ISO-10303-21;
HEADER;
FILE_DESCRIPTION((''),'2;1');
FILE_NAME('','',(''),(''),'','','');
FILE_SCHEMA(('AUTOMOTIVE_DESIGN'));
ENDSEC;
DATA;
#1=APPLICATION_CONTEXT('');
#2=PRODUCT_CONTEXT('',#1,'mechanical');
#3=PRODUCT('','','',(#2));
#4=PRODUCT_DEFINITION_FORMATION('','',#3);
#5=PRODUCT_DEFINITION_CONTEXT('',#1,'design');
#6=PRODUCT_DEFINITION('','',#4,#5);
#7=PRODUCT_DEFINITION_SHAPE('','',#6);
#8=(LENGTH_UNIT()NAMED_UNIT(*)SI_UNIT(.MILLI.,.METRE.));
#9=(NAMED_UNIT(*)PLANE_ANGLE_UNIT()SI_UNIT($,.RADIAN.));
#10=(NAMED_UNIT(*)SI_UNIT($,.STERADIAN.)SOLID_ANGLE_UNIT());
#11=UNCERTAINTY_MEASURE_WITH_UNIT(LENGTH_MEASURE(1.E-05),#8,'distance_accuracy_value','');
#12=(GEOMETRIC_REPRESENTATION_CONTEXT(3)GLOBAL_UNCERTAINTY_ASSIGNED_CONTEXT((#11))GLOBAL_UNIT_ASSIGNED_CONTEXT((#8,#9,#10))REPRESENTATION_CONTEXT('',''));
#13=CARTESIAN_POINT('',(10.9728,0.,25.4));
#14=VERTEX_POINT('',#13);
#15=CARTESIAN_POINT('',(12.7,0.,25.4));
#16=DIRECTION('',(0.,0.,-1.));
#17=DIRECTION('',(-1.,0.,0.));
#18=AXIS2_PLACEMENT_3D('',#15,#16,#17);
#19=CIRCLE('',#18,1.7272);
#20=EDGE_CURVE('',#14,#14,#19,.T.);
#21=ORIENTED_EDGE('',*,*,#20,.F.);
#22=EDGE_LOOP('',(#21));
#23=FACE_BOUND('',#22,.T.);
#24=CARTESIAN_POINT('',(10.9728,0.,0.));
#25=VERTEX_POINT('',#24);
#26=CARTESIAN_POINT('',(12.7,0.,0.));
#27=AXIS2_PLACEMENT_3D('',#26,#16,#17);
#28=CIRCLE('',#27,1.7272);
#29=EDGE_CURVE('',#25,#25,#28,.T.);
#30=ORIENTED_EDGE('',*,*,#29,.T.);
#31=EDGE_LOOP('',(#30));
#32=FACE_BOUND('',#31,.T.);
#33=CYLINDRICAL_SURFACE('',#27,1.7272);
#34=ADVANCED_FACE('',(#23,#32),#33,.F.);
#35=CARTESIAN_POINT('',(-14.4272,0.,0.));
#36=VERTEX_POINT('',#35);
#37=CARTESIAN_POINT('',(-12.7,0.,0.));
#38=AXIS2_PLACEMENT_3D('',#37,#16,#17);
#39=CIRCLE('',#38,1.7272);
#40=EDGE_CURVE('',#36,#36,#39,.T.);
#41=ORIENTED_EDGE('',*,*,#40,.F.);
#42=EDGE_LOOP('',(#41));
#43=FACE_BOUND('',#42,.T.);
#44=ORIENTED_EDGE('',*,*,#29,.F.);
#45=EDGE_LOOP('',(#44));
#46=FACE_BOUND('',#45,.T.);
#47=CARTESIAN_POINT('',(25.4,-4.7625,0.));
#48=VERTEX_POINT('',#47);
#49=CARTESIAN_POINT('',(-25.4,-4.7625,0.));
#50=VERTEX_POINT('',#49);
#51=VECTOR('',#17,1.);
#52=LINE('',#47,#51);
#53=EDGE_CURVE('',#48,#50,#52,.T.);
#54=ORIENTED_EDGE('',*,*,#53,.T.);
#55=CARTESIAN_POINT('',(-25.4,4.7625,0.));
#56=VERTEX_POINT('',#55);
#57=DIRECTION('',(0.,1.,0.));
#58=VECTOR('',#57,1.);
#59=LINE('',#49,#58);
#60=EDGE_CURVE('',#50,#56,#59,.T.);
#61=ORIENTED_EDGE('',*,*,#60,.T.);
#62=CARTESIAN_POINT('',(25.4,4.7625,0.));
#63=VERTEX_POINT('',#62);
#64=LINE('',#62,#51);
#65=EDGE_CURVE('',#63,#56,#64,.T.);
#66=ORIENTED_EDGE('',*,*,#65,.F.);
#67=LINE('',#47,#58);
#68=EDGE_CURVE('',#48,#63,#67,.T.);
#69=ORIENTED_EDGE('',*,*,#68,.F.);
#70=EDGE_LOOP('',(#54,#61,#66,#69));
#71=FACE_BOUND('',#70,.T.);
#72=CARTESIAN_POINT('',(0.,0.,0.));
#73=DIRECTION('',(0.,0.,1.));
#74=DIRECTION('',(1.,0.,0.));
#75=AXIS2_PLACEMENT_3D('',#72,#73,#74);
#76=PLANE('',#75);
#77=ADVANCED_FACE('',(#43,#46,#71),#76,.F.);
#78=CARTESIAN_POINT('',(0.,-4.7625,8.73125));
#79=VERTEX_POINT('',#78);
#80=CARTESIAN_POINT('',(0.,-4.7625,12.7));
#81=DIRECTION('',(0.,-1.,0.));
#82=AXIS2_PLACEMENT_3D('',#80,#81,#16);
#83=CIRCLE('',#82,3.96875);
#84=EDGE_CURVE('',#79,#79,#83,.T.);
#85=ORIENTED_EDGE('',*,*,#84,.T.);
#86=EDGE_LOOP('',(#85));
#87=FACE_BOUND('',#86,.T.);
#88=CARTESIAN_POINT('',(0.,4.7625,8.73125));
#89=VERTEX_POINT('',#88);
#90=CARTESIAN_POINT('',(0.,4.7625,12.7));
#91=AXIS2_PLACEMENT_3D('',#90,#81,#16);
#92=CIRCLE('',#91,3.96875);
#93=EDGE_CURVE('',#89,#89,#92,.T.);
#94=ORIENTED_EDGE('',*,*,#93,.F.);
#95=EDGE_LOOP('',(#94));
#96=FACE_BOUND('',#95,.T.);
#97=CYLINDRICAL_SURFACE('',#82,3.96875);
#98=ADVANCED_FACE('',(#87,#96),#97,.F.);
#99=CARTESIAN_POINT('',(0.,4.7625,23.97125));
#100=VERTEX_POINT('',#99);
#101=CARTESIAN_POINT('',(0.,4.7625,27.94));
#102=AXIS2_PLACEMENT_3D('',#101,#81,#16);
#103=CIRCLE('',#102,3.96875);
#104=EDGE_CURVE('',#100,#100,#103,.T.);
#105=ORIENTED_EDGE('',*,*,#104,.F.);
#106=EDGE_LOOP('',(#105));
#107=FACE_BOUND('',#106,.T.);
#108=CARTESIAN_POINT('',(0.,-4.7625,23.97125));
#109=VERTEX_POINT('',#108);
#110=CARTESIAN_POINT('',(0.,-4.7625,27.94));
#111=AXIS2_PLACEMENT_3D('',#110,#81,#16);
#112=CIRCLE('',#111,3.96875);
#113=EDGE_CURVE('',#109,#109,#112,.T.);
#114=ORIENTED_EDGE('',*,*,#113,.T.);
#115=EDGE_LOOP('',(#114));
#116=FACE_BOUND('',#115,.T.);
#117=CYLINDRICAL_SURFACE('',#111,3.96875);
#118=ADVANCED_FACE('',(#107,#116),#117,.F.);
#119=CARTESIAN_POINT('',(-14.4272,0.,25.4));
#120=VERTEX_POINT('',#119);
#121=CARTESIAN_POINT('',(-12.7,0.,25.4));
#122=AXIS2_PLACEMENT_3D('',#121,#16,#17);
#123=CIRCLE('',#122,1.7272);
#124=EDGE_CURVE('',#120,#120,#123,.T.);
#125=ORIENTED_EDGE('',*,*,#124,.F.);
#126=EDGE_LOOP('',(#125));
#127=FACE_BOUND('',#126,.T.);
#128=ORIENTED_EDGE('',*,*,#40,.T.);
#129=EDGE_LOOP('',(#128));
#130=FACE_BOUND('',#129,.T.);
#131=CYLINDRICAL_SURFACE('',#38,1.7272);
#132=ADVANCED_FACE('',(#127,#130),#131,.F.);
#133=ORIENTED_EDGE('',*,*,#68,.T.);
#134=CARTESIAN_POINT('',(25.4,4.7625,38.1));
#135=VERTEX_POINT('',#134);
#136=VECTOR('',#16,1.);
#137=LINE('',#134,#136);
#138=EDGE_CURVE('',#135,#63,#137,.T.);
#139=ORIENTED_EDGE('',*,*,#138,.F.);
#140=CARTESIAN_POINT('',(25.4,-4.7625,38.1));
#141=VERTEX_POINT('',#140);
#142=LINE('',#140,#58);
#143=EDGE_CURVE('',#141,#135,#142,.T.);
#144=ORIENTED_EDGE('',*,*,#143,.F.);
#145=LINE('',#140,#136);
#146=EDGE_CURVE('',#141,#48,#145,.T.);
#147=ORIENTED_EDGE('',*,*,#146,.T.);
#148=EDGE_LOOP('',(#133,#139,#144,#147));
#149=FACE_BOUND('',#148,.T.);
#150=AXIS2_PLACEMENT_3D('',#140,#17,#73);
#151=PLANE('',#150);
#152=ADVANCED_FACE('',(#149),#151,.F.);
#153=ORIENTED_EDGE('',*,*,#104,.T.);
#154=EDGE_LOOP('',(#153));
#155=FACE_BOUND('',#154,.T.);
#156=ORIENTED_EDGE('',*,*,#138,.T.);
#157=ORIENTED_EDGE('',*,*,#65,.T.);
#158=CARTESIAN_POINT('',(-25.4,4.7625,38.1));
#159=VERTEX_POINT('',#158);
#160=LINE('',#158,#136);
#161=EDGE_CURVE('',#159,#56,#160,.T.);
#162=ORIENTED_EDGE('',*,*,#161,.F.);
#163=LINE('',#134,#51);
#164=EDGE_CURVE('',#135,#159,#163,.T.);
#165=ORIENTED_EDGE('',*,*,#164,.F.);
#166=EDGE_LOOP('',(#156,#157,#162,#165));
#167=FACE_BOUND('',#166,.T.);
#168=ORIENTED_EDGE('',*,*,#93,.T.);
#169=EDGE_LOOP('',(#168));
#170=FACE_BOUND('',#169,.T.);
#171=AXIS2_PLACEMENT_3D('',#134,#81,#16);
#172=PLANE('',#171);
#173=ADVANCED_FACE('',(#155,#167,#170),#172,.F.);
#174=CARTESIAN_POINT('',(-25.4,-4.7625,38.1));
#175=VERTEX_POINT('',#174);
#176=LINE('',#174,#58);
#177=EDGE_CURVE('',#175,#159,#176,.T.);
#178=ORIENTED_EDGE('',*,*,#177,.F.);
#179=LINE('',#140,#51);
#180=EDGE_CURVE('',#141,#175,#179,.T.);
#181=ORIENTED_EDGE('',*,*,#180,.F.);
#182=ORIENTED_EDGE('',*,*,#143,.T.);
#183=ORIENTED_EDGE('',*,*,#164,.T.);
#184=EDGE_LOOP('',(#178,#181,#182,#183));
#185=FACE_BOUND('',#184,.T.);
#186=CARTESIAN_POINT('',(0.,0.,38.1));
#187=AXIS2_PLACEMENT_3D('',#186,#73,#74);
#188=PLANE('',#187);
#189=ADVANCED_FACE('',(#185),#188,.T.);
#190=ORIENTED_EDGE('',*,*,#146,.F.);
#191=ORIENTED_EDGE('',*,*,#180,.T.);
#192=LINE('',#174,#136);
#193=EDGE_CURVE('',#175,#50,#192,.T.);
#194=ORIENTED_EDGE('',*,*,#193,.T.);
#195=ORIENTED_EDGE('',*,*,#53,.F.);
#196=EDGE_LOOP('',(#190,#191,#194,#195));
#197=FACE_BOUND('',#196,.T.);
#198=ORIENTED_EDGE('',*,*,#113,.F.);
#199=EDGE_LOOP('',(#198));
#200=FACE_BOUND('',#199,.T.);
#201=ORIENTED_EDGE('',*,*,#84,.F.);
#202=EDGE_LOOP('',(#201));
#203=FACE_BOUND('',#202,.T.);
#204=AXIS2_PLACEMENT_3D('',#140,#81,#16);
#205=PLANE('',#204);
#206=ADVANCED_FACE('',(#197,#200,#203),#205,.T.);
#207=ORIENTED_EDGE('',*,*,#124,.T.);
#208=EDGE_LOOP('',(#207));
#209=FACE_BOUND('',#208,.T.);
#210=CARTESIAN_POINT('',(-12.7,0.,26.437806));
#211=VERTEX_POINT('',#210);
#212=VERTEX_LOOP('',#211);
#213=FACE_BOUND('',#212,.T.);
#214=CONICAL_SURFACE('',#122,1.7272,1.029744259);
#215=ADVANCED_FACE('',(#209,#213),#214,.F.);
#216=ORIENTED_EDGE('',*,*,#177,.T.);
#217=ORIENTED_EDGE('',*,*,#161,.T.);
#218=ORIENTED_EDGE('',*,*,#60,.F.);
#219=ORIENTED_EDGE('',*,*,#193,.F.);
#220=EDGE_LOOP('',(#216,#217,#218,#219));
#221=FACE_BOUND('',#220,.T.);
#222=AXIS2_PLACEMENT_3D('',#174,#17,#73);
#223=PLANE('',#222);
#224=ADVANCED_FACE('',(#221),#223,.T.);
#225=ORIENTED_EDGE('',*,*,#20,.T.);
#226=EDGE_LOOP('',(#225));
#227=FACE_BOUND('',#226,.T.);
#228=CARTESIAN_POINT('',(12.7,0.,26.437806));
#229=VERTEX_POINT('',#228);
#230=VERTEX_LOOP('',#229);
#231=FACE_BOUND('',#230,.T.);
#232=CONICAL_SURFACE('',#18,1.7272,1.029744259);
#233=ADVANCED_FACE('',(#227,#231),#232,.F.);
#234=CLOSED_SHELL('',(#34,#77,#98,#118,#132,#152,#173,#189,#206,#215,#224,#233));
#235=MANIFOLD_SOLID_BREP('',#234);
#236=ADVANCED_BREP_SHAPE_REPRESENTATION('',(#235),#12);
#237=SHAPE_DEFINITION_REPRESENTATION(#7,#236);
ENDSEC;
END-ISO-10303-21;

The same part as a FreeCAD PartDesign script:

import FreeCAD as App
import Part
import Sketcher
Q = App.Units.Quantity

doc = App.newDocument("Part")
params = doc.addObject("Spreadsheet::Sheet", "Params")
for row, (alias, value) in enumerate([
    ("sketch1_width", "2 in"),
    ("sketch1_height", "0.375 in"),
    ("pad1_length", "1.5 in"),
    ("sketch2_diameter", "0.3125 in"),
    ("hole_diameter", "0.3125 in"),
    ("sketch3_diameter", "0.136 in"),
    ("hole2_diameter", "0.136 in"),
    ("hole2_depth", "1 in"),
], start=1):
    params.set(f"A{row}", alias)
    params.set(f"B{row}", "=" + value)
    params.setAlias(f"B{row}", alias)

body = doc.addObject("PartDesign::Body", "Body")

# Sketch on XY plane
sketch1 = doc.addObject("Sketcher::SketchObject", "Sketch")
body.addObject(sketch1)
sketch1.AttachmentSupport = (doc.XY_Plane, [""])
sketch1.MapMode = "FlatFace"
sketch1.addGeometry([
    Part.LineSegment(App.Vector(-25.4, 4.7625, 0), App.Vector(-25.4, -4.7625, 0)),
    Part.LineSegment(App.Vector(-25.4, -4.7625, 0), App.Vector(25.4, -4.7625, 0)),
    Part.LineSegment(App.Vector(25.4, -4.7625, 0), App.Vector(25.4, 4.7625, 0)),
    Part.LineSegment(App.Vector(25.4, 4.7625, 0), App.Vector(-25.4, 4.7625, 0)),
], False)
sketch1.addConstraint([
    Sketcher.Constraint("Coincident", 0, 2, 1, 1),
    Sketcher.Constraint("Coincident", 1, 2, 2, 1),
    Sketcher.Constraint("Coincident", 2, 2, 3, 1),
    Sketcher.Constraint("Coincident", 3, 2, 0, 1),
    Sketcher.Constraint("Vertical", 0),
    Sketcher.Constraint("Horizontal", 1),
    Sketcher.Constraint("Vertical", 2),
    Sketcher.Constraint("Horizontal", 3),
    Sketcher.Constraint("Symmetric", 0, 2, 2, 2, -1, 1),
    Sketcher.Constraint("DistanceX", 1, 1, 1, 2, Q("2 in")),
    Sketcher.Constraint("DistanceY", 0, 2, 0, 1, Q("0.375 in")),
])
sketch1.setExpression("Constraints[9]", "Params.sketch1_width")
sketch1.setExpression("Constraints[10]", "Params.sketch1_height")
pad1 = doc.addObject("PartDesign::Pad", "Pad")
body.addObject(pad1)
pad1.Profile = sketch1
pad1.setExpression("Length", "Params.pad1_length")

# Sketch on XZ plane
sketch2 = doc.addObject("Sketcher::SketchObject", "Sketch001")
body.addObject(sketch2)
sketch2.AttachmentSupport = (doc.XZ_Plane, [""])
sketch2.MapMode = "FlatFace"
sketch2.AttachmentOffset = App.Placement(App.Vector(0, 0, 0.1875 * 25.4), App.Rotation())
sketch2.addGeometry([
    Part.Circle(App.Vector(0, 12.7, 0), App.Vector(0, 0, 1), 3.96875),
    Part.Circle(App.Vector(0, 27.94, 0), App.Vector(0, 0, 1), 3.96875),
], False)
sketch2.addConstraint([
    Sketcher.Constraint("Equal", 0, 1),
    Sketcher.Constraint("PointOnObject", 0, 3, -2),
    Sketcher.Constraint("PointOnObject", 1, 3, -2),
    Sketcher.Constraint("Diameter", 0, Q("0.3125 in")),
    Sketcher.Constraint("DistanceY", -1, 1, 0, 3, Q("0.5 in")),
    Sketcher.Constraint("DistanceY", -1, 1, 1, 3, Q("1.1 in")),
])
sketch2.setExpression("Constraints[3]", "Params.sketch2_diameter")
doc.recompute()
hole = doc.addObject("PartDesign::Hole", "Hole")
body.addObject(hole)
hole.Profile = sketch2
hole.ThreadType = "None"
hole.setExpression("Diameter", "Params.hole_diameter")
hole.DepthType = "ThroughAll"

# Sketch on XY plane
sketch3 = doc.addObject("Sketcher::SketchObject", "Sketch002")
body.addObject(sketch3)
sketch3.AttachmentSupport = (doc.XY_Plane, [""])
sketch3.MapMode = "FlatFace"
sketch3.addGeometry([
    Part.Circle(App.Vector(12.7, 0, 0), App.Vector(0, 0, 1), 1.7272),
    Part.Circle(App.Vector(-12.7, 0, 0), App.Vector(0, 0, 1), 1.7272),
], False)
sketch3.addConstraint([
    Sketcher.Constraint("Equal", 0, 1),
    Sketcher.Constraint("Symmetric", 0, 3, 1, 3, -1, 1),
    Sketcher.Constraint("PointOnObject", 0, 3, -1),
    Sketcher.Constraint("Diameter", 0, Q("0.136 in")),
    Sketcher.Constraint("DistanceX", 1, 3, 0, 3, Q("1 in")),
])
sketch3.setExpression("Constraints[3]", "Params.sketch3_diameter")
doc.recompute()
hole2 = doc.addObject("PartDesign::Hole", "Hole001")
body.addObject(hole2)
hole2.Profile = sketch3
hole2.ThreadType = "None"
hole2.setExpression("Diameter", "Params.hole2_diameter")
hole2.DepthType = "Dimension"
hole2.setExpression("Depth", "Params.hole2_depth")
hole2.DrillPoint = "Angled"
hole2.DrillPointAngle = 118
hole2.Reversed = True

doc.recompute()
